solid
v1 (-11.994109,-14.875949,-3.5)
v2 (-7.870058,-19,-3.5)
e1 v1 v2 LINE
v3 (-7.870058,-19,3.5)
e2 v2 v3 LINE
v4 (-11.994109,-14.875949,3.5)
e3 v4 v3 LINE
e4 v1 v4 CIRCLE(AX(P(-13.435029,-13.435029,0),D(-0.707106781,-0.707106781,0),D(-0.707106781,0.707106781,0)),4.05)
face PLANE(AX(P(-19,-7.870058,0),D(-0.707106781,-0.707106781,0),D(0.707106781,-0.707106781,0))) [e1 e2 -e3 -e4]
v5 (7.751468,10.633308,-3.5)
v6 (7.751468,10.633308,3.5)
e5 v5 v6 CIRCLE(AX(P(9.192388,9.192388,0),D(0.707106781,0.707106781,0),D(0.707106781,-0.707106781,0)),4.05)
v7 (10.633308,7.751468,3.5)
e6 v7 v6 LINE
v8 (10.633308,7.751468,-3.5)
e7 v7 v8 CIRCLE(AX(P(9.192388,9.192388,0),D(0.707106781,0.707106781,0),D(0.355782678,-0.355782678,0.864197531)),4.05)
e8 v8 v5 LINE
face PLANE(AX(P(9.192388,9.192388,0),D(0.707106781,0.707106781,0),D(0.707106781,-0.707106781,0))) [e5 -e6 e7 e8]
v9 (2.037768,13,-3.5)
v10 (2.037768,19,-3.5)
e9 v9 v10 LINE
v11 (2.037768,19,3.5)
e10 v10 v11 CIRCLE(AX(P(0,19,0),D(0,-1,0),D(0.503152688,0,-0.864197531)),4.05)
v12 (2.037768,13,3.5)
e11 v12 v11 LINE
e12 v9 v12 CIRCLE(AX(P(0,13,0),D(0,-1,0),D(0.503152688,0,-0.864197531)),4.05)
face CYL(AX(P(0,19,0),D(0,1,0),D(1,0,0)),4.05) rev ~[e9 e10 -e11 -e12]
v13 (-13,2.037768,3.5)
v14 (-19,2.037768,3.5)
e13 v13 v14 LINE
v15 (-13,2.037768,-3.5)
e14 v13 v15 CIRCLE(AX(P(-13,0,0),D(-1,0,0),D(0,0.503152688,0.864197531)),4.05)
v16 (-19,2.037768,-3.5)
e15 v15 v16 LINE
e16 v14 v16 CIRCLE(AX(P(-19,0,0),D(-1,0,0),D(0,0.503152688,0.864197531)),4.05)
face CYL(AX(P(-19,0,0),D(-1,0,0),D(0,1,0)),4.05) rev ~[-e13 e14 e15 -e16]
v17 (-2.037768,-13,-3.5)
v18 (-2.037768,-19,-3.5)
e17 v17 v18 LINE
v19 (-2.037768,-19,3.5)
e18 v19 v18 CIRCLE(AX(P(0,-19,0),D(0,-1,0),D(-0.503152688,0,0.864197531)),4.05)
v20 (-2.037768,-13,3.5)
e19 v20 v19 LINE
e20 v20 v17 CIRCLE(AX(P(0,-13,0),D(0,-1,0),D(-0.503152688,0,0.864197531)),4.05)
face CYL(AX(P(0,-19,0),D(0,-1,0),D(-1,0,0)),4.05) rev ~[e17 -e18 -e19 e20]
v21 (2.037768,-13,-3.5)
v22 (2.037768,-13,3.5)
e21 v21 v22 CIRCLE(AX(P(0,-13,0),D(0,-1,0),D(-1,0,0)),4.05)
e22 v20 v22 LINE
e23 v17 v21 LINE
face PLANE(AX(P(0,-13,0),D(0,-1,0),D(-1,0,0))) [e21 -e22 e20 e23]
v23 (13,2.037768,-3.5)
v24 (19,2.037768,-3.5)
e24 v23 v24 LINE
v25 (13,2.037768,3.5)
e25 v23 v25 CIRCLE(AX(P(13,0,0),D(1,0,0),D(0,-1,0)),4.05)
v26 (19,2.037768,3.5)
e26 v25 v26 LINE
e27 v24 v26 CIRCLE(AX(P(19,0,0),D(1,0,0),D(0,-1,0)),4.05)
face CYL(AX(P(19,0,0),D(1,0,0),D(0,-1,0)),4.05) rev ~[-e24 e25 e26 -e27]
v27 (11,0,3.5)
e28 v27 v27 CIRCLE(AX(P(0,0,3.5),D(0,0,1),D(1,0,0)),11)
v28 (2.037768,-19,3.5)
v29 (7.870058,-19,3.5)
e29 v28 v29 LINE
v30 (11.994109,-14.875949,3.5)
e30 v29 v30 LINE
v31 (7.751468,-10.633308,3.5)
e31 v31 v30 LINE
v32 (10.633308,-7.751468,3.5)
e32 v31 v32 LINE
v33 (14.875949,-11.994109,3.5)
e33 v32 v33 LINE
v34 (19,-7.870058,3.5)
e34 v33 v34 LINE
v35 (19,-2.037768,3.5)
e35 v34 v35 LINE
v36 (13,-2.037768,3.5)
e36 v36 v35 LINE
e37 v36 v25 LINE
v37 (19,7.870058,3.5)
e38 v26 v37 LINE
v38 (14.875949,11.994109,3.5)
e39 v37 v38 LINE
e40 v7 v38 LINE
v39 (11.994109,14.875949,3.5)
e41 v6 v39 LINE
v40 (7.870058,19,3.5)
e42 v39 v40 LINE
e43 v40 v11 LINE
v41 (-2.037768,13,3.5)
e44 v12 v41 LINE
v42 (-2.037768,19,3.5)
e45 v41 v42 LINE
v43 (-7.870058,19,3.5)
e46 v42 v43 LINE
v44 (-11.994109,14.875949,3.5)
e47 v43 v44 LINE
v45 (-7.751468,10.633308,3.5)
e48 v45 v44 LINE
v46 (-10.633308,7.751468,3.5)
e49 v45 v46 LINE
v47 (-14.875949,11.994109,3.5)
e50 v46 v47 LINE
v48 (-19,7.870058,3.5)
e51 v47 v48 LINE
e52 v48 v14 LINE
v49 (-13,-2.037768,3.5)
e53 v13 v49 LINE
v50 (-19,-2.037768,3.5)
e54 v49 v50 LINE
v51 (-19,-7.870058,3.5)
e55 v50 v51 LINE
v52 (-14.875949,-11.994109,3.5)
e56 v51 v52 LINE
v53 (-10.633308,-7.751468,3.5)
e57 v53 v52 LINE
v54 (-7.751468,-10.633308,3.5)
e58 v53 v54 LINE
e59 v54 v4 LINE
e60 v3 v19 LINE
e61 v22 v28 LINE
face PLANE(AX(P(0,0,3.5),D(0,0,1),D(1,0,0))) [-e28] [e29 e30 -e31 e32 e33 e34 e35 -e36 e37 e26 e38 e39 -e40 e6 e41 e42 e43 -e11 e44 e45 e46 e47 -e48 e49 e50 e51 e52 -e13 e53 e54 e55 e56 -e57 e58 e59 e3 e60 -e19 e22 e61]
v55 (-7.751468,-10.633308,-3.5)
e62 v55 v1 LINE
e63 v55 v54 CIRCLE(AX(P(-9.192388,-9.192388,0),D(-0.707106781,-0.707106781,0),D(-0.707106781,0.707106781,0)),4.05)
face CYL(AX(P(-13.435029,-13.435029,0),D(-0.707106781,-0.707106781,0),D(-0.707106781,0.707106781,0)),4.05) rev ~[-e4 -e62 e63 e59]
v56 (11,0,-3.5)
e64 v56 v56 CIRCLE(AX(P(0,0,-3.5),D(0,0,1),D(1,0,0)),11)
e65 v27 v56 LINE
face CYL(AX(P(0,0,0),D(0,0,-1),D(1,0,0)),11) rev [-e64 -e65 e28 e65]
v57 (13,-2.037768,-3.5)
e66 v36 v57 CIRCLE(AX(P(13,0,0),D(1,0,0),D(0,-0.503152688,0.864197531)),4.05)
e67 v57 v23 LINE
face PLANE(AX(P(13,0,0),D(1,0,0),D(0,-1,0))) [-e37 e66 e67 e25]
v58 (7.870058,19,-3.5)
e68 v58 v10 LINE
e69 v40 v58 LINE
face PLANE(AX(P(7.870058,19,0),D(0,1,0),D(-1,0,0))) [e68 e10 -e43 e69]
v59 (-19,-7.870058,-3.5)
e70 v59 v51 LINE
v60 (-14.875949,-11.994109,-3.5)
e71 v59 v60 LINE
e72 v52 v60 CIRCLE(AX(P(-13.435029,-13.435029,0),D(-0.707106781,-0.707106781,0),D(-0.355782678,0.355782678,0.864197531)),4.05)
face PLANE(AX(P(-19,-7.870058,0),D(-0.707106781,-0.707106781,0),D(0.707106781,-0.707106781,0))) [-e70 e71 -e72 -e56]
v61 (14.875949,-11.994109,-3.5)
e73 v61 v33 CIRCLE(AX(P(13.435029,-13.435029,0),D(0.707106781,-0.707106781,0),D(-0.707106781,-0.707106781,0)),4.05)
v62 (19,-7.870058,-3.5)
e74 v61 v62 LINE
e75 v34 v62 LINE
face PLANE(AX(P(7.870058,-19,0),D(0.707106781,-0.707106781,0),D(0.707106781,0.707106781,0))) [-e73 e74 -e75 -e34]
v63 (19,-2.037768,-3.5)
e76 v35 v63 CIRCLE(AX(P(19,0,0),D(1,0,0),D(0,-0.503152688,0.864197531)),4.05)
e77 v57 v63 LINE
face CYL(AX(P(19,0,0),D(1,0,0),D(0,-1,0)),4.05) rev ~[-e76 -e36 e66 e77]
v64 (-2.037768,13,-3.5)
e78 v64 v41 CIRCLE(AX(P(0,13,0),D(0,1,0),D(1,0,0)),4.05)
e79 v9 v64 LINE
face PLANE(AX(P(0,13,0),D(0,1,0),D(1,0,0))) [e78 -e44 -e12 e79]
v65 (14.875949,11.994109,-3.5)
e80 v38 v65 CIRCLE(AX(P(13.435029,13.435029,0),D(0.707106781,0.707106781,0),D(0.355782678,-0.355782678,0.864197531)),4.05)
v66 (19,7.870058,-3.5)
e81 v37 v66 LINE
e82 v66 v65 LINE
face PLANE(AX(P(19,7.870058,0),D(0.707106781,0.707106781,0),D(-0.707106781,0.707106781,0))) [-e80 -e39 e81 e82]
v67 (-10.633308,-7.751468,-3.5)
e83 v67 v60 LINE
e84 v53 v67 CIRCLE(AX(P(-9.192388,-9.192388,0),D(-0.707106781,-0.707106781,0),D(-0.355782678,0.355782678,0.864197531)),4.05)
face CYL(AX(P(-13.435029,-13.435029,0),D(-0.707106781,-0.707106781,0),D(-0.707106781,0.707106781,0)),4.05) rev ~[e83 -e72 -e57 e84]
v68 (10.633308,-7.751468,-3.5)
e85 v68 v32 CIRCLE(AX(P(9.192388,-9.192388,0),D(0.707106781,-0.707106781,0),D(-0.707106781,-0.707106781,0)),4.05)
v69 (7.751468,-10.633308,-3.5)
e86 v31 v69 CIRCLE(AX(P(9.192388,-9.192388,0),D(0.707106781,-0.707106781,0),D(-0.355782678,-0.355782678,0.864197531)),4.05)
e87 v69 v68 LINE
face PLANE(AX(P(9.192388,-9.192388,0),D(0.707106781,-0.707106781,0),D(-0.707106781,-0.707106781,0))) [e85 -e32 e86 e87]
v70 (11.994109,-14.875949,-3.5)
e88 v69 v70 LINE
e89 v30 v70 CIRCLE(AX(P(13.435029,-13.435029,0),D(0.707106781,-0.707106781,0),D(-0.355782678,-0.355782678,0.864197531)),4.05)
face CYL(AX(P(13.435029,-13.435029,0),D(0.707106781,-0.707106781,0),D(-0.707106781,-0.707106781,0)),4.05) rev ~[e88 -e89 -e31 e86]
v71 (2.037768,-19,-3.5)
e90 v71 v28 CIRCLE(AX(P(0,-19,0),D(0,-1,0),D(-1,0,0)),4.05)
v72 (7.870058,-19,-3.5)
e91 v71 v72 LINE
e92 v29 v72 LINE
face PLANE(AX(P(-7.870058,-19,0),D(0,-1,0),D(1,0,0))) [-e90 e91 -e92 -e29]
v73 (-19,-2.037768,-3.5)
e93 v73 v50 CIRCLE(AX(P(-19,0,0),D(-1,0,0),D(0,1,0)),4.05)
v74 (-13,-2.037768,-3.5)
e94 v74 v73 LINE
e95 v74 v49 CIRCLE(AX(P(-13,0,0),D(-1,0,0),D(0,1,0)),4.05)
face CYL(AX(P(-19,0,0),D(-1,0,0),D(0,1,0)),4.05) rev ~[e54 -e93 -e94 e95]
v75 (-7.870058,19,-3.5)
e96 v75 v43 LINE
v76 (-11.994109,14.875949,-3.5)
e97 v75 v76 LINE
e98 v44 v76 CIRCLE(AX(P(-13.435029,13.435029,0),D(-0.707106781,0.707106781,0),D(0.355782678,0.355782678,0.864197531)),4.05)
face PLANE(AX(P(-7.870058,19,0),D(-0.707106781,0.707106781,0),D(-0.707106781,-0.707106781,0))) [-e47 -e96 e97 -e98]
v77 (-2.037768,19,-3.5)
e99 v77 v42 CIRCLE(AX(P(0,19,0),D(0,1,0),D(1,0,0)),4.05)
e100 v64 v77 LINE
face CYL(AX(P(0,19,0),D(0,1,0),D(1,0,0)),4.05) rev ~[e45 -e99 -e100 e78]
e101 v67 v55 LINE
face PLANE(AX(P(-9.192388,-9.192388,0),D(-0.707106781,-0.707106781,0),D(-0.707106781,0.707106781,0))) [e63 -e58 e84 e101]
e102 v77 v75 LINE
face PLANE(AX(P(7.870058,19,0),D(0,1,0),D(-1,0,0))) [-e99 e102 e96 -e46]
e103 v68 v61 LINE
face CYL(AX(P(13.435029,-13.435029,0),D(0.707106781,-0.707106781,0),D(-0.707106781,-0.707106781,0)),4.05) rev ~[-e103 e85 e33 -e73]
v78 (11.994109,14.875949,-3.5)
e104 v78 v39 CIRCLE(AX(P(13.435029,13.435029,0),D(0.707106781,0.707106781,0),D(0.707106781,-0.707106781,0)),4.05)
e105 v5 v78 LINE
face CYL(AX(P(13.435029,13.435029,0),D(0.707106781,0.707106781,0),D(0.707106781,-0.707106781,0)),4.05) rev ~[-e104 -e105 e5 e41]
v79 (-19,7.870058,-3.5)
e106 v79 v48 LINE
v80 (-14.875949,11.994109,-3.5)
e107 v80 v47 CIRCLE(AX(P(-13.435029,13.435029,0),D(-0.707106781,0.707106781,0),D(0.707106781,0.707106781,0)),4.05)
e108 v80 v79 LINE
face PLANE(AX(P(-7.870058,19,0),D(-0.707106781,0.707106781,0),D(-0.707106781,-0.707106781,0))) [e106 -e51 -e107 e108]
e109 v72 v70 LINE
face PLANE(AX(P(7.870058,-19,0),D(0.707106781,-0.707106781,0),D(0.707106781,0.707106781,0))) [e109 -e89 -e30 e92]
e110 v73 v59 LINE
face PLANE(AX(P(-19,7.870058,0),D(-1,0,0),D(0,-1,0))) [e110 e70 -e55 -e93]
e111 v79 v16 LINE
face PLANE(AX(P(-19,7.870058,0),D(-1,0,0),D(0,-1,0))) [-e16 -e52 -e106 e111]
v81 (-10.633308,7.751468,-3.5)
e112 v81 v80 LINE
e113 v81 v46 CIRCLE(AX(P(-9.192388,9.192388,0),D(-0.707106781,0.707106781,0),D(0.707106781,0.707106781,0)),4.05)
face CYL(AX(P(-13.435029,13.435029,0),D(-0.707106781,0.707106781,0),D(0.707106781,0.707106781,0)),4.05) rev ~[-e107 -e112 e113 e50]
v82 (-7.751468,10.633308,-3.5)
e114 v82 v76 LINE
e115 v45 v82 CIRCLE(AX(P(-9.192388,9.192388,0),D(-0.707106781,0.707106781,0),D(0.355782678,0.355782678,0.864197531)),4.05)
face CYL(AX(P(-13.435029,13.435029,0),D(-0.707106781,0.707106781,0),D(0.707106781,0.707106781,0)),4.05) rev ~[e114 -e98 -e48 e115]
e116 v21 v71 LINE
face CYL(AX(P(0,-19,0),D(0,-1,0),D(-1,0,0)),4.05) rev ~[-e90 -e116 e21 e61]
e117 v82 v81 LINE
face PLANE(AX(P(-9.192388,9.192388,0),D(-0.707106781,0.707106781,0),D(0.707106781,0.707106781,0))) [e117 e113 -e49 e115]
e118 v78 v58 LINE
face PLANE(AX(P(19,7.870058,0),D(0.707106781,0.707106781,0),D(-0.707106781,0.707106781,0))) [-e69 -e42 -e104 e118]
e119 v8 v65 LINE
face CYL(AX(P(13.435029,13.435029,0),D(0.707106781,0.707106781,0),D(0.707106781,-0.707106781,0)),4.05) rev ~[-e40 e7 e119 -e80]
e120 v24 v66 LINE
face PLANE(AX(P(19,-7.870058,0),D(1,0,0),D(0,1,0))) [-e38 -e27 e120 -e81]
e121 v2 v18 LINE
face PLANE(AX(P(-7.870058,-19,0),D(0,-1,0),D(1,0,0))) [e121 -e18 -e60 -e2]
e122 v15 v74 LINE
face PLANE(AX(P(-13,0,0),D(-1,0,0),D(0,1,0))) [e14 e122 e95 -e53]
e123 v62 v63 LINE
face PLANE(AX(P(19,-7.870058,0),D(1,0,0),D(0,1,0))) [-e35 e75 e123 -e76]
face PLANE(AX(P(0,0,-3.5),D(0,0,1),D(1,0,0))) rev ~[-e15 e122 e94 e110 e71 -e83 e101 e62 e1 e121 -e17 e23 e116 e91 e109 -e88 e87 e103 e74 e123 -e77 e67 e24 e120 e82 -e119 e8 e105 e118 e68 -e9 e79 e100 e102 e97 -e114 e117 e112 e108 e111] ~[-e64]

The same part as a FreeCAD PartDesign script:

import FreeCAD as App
import Part
import Sketcher

V = App.Vector
Q = App.Units.Quantity


def add_polygon(sketch, points):
    """Adds a closed chain of lines whose ends are joined by coincident constraints."""
    first, n = sketch.GeometryCount, len(points)
    for a, b in zip(points, points[1:] + points[:1]):
        sketch.addGeometry(Part.LineSegment(App.Vector(*a, 0), App.Vector(*b, 0)), False)
    for i in range(n):
        sketch.addConstraint(Sketcher.Constraint("Coincident", first + i, 2, first + (i + 1) % n, 1))

doc = App.newDocument("Part")
body = doc.addObject("PartDesign::Body", "Body")

sketch1 = doc.addObject("Sketcher::SketchObject", "Sketch")
body.addObject(sketch1)
sketch1.AttachmentSupport = (doc.XY_Plane, [""])
sketch1.MapMode = "FlatFace"
add_polygon(sketch1, [(8, 19), (-8, 19), (-19, 8), (-19, -8), (-8, -19), (8, -19), (19, -8), (19, 8)])
sketch1.addGeometry(Part.Circle(V(0, 0, 0), V(0, 0, 1), 11), False)
sketch1.addConstraint([
    Sketcher.Constraint("Horizontal", 0),
    Sketcher.Constraint("Vertical", 2),
    Sketcher.Constraint("Horizontal", 4),
    Sketcher.Constraint("Vertical", 6),
    Sketcher.Constraint("Coincident", 8, 3, -1, 1),
    Sketcher.Constraint("Symmetric", 0, 2, 4, 2, -1, 1),
    Sketcher.Constraint("Symmetric", 1, 2, 5, 2, -1, 1),
    Sketcher.Constraint("Perpendicular", 1, 3),
    Sketcher.Constraint("Perpendicular", 5, 7),
    Sketcher.Constraint("Horizontal", 2, 2, 5, 2),
    Sketcher.Constraint("Horizontal", 1, 2, 6, 2),
    Sketcher.Constraint("Vertical", 0, 2, 3, 2),
    Sketcher.Constraint("Equal", 4, 2),
    Sketcher.Constraint("Diameter", 8, Q("22 mm")),
    Sketcher.Constraint("DistanceY", -1, 1, 0, 2, Q("19 mm")),
    Sketcher.Constraint("DistanceX", 0, 2, 0, 1, Q("15.740115 mm")),
])
pad1 = doc.addObject("PartDesign::Pad", "Pad")
body.addObject(pad1)
pad1.Profile = sketch1
pad1.Length = 7
pad1.Midplane = True

sketch2 = doc.addObject("Sketcher::SketchObject", "Sketch001")
body.addObject(sketch2)
sketch2.AttachmentSupport = (doc.XZ_Plane, [""])
sketch2.MapMode = "FlatFace"
sketch2.AttachmentOffset = App.Placement(V(0, 0, 19), App.Rotation())
sketch2.addGeometry(Part.Circle(V(0, 0, 0), V(0, 0, 1), 4), False)
sketch2.addConstraint([
    Sketcher.Constraint("Coincident", 0, 3, -1, 1),
    Sketcher.Constraint("Diameter", 0, Q("8.1 mm")),
])
pocket1 = doc.addObject("PartDesign::Pocket", "Pocket")
body.addObject(pocket1)
pocket1.Profile = sketch2
pocket1.Length = 6
doc.recompute()

polarpattern = doc.addObject("PartDesign::PolarPattern", "PolarPattern")
body.addObject(polarpattern)
polarpattern.Originals = [pocket1]
polarpattern.Axis = (doc.Z_Axis, [""])
polarpattern.Angle = 360
polarpattern.Occurrences = 8
body.Tip = polarpattern

doc.recompute()
